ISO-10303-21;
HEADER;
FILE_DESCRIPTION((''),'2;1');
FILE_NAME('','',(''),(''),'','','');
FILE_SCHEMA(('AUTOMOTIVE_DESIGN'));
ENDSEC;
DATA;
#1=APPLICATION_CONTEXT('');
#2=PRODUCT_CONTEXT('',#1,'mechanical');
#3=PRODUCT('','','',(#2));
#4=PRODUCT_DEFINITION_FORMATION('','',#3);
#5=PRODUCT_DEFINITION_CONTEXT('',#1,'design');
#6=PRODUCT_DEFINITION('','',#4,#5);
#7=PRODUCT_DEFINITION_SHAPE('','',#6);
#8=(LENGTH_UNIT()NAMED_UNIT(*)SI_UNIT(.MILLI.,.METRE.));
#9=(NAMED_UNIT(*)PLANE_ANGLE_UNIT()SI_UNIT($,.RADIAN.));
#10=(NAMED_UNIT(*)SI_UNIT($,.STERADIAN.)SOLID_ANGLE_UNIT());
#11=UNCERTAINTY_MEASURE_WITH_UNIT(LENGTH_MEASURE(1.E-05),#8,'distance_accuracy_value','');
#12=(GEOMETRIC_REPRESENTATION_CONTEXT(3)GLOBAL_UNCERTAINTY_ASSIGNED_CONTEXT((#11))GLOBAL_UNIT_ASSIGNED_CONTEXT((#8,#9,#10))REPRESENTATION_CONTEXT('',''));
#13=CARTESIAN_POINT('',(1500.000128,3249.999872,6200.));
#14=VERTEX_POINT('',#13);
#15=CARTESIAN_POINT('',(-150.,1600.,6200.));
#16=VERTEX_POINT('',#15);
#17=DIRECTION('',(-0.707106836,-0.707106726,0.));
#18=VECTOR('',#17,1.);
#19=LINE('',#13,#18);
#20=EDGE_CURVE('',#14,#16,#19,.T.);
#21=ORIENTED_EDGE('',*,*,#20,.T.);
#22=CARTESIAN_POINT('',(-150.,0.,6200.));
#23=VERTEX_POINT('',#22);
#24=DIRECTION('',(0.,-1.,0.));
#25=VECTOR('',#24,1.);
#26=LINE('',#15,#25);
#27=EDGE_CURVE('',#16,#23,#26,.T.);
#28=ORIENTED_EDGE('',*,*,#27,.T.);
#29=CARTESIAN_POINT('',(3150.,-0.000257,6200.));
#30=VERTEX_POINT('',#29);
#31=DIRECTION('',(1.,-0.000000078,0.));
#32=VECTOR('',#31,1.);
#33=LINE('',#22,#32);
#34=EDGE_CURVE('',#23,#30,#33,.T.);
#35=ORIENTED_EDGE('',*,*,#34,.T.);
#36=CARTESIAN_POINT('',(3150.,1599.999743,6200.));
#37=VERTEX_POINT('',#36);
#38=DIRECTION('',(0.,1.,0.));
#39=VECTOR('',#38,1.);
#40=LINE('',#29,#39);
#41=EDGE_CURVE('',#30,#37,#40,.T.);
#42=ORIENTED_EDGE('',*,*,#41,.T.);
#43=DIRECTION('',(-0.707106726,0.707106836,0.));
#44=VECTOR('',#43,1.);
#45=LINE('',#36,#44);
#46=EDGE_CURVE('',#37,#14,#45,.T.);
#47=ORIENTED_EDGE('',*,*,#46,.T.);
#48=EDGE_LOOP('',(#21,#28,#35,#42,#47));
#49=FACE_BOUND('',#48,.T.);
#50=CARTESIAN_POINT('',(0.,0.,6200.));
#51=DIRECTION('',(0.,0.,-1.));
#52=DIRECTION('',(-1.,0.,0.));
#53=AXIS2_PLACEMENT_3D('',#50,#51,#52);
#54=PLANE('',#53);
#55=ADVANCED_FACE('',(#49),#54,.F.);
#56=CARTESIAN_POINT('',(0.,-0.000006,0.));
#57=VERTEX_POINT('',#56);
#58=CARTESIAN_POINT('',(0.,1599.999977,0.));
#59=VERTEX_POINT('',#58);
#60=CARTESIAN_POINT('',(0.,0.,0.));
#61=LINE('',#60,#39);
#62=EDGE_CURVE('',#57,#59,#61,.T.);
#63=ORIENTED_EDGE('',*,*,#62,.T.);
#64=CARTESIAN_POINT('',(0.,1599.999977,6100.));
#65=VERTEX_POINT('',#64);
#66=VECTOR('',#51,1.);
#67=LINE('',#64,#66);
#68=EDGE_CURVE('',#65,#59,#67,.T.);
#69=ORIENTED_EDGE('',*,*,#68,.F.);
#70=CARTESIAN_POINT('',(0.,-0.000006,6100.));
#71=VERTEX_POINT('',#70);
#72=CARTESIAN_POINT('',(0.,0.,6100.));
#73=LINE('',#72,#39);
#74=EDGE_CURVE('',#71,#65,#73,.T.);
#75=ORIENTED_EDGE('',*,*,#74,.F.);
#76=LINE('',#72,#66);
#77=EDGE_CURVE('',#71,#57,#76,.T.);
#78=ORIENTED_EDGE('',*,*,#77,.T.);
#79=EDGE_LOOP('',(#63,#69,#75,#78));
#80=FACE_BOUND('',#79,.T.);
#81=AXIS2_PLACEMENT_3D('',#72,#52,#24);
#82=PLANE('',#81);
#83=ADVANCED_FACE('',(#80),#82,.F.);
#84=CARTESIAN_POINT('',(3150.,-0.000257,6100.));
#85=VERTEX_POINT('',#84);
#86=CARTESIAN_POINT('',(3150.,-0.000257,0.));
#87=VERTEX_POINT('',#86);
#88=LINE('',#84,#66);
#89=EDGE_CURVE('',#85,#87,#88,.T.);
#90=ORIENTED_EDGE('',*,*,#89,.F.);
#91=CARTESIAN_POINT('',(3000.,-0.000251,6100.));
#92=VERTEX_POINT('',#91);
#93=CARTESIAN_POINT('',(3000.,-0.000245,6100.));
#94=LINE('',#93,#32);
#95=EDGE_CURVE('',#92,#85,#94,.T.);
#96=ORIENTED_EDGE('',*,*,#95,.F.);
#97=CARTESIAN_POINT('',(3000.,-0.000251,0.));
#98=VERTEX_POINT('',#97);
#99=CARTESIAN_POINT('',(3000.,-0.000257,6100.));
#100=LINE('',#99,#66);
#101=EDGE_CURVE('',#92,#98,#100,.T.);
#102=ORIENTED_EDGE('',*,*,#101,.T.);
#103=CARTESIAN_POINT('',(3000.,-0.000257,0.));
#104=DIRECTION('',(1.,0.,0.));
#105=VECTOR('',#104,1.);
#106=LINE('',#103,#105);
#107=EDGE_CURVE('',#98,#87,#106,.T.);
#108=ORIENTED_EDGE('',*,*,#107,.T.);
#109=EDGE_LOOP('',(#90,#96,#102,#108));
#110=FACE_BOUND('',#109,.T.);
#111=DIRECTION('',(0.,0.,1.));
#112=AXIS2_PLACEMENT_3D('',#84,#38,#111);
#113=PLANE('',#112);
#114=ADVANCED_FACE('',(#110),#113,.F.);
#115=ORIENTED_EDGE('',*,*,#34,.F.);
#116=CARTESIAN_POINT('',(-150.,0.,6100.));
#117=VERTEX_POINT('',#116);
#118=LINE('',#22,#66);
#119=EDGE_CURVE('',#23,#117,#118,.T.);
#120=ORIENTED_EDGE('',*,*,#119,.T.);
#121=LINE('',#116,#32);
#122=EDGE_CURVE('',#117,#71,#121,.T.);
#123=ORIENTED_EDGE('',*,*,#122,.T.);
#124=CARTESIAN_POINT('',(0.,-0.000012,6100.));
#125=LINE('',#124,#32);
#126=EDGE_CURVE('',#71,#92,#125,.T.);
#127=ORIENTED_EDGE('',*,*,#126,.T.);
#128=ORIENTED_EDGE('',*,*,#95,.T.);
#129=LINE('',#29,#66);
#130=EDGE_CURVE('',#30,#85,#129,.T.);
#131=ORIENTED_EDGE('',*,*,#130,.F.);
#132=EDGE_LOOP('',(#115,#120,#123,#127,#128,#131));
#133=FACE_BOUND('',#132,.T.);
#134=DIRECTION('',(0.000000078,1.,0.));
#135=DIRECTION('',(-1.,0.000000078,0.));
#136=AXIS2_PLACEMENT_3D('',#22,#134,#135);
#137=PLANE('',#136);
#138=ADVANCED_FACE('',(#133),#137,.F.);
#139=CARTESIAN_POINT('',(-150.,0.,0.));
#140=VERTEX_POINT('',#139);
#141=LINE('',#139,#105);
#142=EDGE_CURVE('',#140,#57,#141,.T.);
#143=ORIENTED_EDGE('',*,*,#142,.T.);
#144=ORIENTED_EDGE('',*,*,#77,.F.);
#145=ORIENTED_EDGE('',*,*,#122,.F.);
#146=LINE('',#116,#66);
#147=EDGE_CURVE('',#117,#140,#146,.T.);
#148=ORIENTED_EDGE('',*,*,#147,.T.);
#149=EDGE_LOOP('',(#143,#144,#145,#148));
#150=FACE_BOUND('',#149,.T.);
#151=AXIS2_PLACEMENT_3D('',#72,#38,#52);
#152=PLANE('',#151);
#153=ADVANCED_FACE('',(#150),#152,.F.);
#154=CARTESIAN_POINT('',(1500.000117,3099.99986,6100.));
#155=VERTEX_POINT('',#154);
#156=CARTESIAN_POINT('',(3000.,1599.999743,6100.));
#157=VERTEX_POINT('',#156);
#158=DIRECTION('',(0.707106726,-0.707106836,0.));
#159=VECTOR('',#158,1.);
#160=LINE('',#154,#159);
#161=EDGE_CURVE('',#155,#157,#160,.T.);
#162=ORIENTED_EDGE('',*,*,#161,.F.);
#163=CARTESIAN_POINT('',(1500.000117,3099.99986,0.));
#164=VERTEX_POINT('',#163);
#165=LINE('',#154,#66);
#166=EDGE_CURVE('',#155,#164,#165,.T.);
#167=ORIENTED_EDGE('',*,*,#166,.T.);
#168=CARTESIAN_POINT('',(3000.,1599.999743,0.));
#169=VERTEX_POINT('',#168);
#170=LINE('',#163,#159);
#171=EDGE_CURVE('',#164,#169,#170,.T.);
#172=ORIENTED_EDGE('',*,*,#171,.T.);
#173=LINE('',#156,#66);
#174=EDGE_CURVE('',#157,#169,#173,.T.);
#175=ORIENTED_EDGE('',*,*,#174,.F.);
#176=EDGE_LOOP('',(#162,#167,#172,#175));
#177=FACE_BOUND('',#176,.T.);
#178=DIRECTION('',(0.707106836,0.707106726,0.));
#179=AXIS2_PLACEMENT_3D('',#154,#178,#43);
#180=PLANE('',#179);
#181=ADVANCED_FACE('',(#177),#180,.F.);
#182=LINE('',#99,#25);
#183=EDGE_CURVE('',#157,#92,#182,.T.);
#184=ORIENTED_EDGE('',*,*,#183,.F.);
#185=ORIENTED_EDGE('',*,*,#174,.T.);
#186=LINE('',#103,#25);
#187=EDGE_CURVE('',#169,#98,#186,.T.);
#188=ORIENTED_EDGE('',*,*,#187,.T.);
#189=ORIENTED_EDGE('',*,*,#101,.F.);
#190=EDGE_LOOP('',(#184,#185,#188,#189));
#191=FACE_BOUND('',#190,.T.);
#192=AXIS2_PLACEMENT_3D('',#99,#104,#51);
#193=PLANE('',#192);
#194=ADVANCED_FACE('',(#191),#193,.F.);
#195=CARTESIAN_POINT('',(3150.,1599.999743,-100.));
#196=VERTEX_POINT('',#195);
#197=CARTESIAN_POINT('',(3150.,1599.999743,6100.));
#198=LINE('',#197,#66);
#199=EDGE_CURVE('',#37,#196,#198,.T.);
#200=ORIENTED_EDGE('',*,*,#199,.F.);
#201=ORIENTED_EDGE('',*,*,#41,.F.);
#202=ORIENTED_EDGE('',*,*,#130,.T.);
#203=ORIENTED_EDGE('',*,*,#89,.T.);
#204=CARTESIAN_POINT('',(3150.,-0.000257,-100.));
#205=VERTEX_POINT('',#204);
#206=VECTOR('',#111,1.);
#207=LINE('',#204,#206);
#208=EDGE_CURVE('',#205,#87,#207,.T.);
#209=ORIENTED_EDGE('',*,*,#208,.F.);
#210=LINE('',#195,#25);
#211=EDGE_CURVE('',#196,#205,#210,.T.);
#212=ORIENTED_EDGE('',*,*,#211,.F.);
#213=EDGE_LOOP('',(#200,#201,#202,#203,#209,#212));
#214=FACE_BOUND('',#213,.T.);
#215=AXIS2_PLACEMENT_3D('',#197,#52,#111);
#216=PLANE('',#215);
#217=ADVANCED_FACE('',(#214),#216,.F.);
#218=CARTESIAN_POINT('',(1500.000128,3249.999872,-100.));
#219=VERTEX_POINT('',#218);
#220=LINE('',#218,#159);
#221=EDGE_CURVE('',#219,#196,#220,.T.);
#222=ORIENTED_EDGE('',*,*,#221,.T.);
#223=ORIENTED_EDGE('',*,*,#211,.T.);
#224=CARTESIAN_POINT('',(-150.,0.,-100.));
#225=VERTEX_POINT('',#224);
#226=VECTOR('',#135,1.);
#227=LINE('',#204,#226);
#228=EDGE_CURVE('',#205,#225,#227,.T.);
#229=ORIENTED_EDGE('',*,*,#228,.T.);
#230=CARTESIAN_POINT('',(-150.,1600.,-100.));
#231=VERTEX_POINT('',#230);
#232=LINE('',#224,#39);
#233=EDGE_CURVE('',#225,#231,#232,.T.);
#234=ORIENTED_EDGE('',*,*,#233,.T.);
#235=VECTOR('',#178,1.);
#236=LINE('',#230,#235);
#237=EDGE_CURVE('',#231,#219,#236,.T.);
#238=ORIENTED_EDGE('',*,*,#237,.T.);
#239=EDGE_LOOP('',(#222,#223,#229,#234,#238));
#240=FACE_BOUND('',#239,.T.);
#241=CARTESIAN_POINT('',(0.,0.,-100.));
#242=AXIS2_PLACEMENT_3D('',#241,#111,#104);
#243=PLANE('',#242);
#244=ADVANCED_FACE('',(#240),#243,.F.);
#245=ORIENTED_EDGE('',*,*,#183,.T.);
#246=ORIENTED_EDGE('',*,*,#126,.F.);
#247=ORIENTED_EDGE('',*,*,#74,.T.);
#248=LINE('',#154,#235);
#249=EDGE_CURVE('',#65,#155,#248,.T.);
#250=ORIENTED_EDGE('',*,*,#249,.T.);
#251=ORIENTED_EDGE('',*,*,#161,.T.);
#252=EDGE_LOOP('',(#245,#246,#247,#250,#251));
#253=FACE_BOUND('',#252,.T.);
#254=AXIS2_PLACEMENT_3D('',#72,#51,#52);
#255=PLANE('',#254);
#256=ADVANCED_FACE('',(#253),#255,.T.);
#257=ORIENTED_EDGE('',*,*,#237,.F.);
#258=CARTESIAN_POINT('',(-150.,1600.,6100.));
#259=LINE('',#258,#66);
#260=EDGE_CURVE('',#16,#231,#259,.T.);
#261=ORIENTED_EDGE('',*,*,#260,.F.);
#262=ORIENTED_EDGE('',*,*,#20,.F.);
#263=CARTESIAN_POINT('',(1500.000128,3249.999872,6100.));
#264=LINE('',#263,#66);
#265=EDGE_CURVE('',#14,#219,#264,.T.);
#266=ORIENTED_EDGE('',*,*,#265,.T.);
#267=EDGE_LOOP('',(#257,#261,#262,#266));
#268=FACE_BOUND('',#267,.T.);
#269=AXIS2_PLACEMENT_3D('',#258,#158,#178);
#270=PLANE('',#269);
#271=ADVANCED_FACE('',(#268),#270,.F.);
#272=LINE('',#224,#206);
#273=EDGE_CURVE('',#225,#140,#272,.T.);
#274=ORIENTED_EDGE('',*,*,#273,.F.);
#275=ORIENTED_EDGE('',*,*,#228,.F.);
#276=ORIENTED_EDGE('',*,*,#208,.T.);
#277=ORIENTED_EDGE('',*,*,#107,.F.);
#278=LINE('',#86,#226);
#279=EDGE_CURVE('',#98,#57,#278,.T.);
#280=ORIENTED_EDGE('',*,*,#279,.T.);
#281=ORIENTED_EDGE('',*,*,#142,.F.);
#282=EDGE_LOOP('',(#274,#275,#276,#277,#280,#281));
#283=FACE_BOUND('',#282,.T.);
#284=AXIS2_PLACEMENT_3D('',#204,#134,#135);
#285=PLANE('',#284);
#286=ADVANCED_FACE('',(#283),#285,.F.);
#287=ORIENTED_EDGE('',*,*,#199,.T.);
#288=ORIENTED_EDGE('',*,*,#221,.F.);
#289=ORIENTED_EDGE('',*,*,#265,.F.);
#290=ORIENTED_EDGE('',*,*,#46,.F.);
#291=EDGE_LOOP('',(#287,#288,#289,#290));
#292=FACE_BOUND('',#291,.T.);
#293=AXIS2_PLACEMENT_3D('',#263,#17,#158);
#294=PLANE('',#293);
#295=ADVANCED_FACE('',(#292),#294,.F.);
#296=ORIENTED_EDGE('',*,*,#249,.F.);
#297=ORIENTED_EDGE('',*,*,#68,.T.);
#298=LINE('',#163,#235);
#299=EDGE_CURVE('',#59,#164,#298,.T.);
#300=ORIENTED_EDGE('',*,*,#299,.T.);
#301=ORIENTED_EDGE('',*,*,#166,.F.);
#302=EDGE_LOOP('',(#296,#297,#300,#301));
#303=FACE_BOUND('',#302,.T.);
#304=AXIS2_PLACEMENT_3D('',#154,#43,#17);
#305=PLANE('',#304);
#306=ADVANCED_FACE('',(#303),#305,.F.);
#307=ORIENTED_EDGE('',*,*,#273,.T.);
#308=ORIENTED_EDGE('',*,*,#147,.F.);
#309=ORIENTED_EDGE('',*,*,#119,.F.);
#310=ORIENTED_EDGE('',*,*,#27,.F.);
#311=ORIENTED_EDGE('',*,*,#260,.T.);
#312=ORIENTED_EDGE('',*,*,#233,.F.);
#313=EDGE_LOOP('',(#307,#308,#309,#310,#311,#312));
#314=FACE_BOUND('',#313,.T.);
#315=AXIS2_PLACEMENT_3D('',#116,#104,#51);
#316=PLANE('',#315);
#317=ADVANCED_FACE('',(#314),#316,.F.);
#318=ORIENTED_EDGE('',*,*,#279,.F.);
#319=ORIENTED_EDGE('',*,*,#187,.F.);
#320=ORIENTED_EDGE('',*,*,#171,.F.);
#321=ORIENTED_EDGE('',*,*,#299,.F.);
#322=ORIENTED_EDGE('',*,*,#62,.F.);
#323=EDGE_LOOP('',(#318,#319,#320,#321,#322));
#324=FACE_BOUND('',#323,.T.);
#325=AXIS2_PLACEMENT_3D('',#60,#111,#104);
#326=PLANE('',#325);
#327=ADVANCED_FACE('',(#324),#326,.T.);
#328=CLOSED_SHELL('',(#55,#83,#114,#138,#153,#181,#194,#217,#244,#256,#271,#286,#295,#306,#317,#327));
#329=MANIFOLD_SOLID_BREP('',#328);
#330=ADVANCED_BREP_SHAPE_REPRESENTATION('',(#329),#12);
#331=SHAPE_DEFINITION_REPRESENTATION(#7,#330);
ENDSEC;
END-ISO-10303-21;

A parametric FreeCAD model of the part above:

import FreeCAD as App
import Part
import Sketcher
Q = App.Units.Quantity


def add_polygon(sketch, points):
    """Adds a closed chain of lines whose ends are joined by coincident constraints."""
    first, n = sketch.GeometryCount, len(points)
    for a, b in zip(points, points[1:] + points[:1]):
        sketch.addGeometry(Part.LineSegment(App.Vector(*a, 0), App.Vector(*b, 0)), False)
    for i in range(n):
        sketch.addConstraint(Sketcher.Constraint("Coincident", first + i, 2, first + (i + 1) % n, 1))

doc = App.newDocument("Part")
body = doc.addObject("PartDesign::Body", "Body")

# Sketch on XY plane
sketch1 = doc.addObject("Sketcher::SketchObject", "Sketch")
body.addObject(sketch1)
sketch1.AttachmentSupport = (doc.XY_Plane, [""])
sketch1.MapMode = "FlatFace"
add_polygon(sketch1, [(-150, 0), (0, 0), (0, 1599.999977), (1500.000117, 3099.99986), (3000, 1599.999743), (3000, -0.000257), (3150, -0.000257), (3150, 1599.999743), (1500.000128, 3249.999872), (-150, 1600)])  # lines 0-9
sketch1.addConstraint(Sketcher.Constraint("Horizontal", 0))
sketch1.addConstraint(Sketcher.Constraint("Vertical", 1))
sketch1.addConstraint(Sketcher.Constraint("Vertical", 4))
sketch1.addConstraint(Sketcher.Constraint("Horizontal", 5))
sketch1.addConstraint(Sketcher.Constraint("Vertical", 6))
sketch1.addConstraint(Sketcher.Constraint("Vertical", 9))
sketch1.addConstraint(Sketcher.Constraint("Coincident", 0, 2, -1, 1))
sketch1.addConstraint(Sketcher.Constraint("DistanceX", 0, 1, 0, 2, Q("150 mm")))
sketch1.addConstraint(Sketcher.Constraint("DistanceX", 5, 1, 5, 2, Q("150 mm")))
sketch1.addConstraint(Sketcher.Constraint("DistanceY", 4, 2, 4, 1, Q("1600 mm")))
sketch1.addConstraint(Sketcher.Constraint("DistanceY", 6, 1, 6, 2, Q("1600 mm")))
sketch1.addConstraint(Sketcher.Constraint("DistanceY", 9, 2, 9, 1, Q("1600 mm")))
sketch1.addConstraint(Sketcher.Constraint("DistanceX", -1, 1, 3, 2, Q("3000 mm")))
sketch1.addConstraint(Sketcher.Constraint("DistanceY", 1, 1, 1, 2, Q("1599.999977 mm")))
sketch1.addConstraint(Sketcher.Constraint("DistanceY", -1, 1, 2, 2, Q("3099.99986 mm")))
sketch1.addConstraint(Sketcher.Constraint("DistanceX", -1, 1, 7, 2, Q("1500.000128 mm")))
sketch1.addConstraint(Sketcher.Constraint("DistanceY", -1, 1, 7, 2, Q("3249.999872 mm")))
sketch1.addConstraint(Sketcher.Constraint("DistanceY", 3, 2, 7, 2, Q("1650.000128 mm")))
sketch1.addConstraint(Sketcher.Constraint("Distance", 2, Q("2121.320344 mm")))
pad1 = doc.addObject("PartDesign::Pad", "Pad")
body.addObject(pad1)
pad1.Profile = sketch1
pad1.Length = 6100

# Sketch on XY plane
sketch2 = doc.addObject("Sketcher::SketchObject", "Sketch001")
body.addObject(sketch2)
sketch2.AttachmentSupport = (doc.XY_Plane, [""])
sketch2.MapMode = "FlatFace"
add_polygon(sketch2, [(3150, 1599.999743), (3150, -0.000257), (-150, 0), (-150, 1600), (1500.000128, 3249.999872)])  # lines 0-4
sketch2.addConstraint(Sketcher.Constraint("Vertical", 0))
sketch2.addConstraint(Sketcher.Constraint("Vertical", 2))
sketch2.addConstraint(Sketcher.Constraint("PointOnObject", 1, 2, -1))
sketch2.addConstraint(Sketcher.Constraint("DistanceY", 0, 2, 0, 1, Q("1600 mm")))
sketch2.addConstraint(Sketcher.Constraint("DistanceY", 2, 1, 2, 2, Q("1600 mm")))
sketch2.addConstraint(Sketcher.Constraint("Distance", 1, Q("3300 mm")))
sketch2.addConstraint(Sketcher.Constraint("DistanceX", -1, 1, 0, 2, Q("3150 mm")))
sketch2.addConstraint(Sketcher.Constraint("DistanceX", -1, 1, 3, 2, Q("1500.000128 mm")))
sketch2.addConstraint(Sketcher.Constraint("DistanceY", -1, 1, 3, 2, Q("3249.999872 mm")))
sketch2.addConstraint(Sketcher.Constraint("DistanceY", 0, 2, 3, 2, Q("3250.000128 mm")))
pad2 = doc.addObject("PartDesign::Pad", "Pad001")
body.addObject(pad2)
pad2.Profile = sketch2
pad2.Length = 100
pad2.Reversed = True

# Sketch on XY plane
sketch3 = doc.addObject("Sketcher::SketchObject", "Sketch002")
body.addObject(sketch3)
sketch3.AttachmentSupport = (doc.XY_Plane, [""])
sketch3.MapMode = "FlatFace"
sketch3.AttachmentOffset = App.Placement(App.Vector(0, 0, 6100), App.Rotation())
add_polygon(sketch3, [(-150, 1600), (-150, 0), (3150, -0.000257), (3150, 1599.999743), (1500.000128, 3249.999872)])  # lines 0-4
sketch3.addConstraint(Sketcher.Constraint("Vertical", 0))
sketch3.addConstraint(Sketcher.Constraint("Vertical", 2))
sketch3.addConstraint(Sketcher.Constraint("PointOnObject", 0, 2, -1))
sketch3.addConstraint(Sketcher.Constraint("DistanceY", 0, 2, 0, 1, Q("1600 mm")))
sketch3.addConstraint(Sketcher.Constraint("DistanceY", 2, 1, 2, 2, Q("1600 mm")))
sketch3.addConstraint(Sketcher.Constraint("Distance", 1, Q("3300 mm")))
sketch3.addConstraint(Sketcher.Constraint("DistanceX", 0, 2, -1, 1, Q("150 mm")))
sketch3.addConstraint(Sketcher.Constraint("DistanceX", -1, 1, 3, 2, Q("1500.000128 mm")))
sketch3.addConstraint(Sketcher.Constraint("DistanceY", -1, 1, 3, 2, Q("3249.999872 mm")))
sketch3.addConstraint(Sketcher.Constraint("DistanceY", 2, 2, 3, 2, Q("1650.000128 mm")))
pad3 = doc.addObject("PartDesign::Pad", "Pad002")
body.addObject(pad3)
pad3.Profile = sketch3
pad3.Length = 100

# Sketch on XY plane
sketch4 = doc.addObject("Sketcher::SketchObject", "Sketch003")
body.addObject(sketch4)
sketch4.AttachmentSupport = (doc.XY_Plane, [""])
sketch4.MapMode = "FlatFace"
add_polygon(sketch4, [(3150, 1599.999743), (3150, 0), (-150, 0), (-150, 1600), (1500.000128, 3249.999872)])  # lines 0-4
sketch4.addConstraint(Sketcher.Constraint("Vertical", 0))
sketch4.addConstraint(Sketcher.Constraint("Horizontal", 1))
sketch4.addConstraint(Sketcher.Constraint("Vertical", 2))
sketch4.addConstraint(Sketcher.Constraint("PointOnObject", 0, 2, -1))
sketch4.addConstraint(Sketcher.Constraint("Perpendicular", 3, 4))
sketch4.addConstraint(Sketcher.Constraint("Equal", 3, 4))
sketch4.addConstraint(Sketcher.Constraint("DistanceX", 1, 2, 1, 1, Q("3300 mm")))
sketch4.addConstraint(Sketcher.Constraint("DistanceY", 2, 1, 2, 2, Q("1600 mm")))
sketch4.addConstraint(Sketcher.Constraint("Angle", 3, Q("44.999996 deg")))
sketch4.addConstraint(Sketcher.Constraint("DistanceX", -1, 1, 0, 2, Q("3150 mm")))
pad4 = doc.addObject("PartDesign::Pad", "Pad003")
body.addObject(pad4)
pad4.Profile = sketch4
pad4.Length = 50
pad4.Reversed = True

doc.recompute()
